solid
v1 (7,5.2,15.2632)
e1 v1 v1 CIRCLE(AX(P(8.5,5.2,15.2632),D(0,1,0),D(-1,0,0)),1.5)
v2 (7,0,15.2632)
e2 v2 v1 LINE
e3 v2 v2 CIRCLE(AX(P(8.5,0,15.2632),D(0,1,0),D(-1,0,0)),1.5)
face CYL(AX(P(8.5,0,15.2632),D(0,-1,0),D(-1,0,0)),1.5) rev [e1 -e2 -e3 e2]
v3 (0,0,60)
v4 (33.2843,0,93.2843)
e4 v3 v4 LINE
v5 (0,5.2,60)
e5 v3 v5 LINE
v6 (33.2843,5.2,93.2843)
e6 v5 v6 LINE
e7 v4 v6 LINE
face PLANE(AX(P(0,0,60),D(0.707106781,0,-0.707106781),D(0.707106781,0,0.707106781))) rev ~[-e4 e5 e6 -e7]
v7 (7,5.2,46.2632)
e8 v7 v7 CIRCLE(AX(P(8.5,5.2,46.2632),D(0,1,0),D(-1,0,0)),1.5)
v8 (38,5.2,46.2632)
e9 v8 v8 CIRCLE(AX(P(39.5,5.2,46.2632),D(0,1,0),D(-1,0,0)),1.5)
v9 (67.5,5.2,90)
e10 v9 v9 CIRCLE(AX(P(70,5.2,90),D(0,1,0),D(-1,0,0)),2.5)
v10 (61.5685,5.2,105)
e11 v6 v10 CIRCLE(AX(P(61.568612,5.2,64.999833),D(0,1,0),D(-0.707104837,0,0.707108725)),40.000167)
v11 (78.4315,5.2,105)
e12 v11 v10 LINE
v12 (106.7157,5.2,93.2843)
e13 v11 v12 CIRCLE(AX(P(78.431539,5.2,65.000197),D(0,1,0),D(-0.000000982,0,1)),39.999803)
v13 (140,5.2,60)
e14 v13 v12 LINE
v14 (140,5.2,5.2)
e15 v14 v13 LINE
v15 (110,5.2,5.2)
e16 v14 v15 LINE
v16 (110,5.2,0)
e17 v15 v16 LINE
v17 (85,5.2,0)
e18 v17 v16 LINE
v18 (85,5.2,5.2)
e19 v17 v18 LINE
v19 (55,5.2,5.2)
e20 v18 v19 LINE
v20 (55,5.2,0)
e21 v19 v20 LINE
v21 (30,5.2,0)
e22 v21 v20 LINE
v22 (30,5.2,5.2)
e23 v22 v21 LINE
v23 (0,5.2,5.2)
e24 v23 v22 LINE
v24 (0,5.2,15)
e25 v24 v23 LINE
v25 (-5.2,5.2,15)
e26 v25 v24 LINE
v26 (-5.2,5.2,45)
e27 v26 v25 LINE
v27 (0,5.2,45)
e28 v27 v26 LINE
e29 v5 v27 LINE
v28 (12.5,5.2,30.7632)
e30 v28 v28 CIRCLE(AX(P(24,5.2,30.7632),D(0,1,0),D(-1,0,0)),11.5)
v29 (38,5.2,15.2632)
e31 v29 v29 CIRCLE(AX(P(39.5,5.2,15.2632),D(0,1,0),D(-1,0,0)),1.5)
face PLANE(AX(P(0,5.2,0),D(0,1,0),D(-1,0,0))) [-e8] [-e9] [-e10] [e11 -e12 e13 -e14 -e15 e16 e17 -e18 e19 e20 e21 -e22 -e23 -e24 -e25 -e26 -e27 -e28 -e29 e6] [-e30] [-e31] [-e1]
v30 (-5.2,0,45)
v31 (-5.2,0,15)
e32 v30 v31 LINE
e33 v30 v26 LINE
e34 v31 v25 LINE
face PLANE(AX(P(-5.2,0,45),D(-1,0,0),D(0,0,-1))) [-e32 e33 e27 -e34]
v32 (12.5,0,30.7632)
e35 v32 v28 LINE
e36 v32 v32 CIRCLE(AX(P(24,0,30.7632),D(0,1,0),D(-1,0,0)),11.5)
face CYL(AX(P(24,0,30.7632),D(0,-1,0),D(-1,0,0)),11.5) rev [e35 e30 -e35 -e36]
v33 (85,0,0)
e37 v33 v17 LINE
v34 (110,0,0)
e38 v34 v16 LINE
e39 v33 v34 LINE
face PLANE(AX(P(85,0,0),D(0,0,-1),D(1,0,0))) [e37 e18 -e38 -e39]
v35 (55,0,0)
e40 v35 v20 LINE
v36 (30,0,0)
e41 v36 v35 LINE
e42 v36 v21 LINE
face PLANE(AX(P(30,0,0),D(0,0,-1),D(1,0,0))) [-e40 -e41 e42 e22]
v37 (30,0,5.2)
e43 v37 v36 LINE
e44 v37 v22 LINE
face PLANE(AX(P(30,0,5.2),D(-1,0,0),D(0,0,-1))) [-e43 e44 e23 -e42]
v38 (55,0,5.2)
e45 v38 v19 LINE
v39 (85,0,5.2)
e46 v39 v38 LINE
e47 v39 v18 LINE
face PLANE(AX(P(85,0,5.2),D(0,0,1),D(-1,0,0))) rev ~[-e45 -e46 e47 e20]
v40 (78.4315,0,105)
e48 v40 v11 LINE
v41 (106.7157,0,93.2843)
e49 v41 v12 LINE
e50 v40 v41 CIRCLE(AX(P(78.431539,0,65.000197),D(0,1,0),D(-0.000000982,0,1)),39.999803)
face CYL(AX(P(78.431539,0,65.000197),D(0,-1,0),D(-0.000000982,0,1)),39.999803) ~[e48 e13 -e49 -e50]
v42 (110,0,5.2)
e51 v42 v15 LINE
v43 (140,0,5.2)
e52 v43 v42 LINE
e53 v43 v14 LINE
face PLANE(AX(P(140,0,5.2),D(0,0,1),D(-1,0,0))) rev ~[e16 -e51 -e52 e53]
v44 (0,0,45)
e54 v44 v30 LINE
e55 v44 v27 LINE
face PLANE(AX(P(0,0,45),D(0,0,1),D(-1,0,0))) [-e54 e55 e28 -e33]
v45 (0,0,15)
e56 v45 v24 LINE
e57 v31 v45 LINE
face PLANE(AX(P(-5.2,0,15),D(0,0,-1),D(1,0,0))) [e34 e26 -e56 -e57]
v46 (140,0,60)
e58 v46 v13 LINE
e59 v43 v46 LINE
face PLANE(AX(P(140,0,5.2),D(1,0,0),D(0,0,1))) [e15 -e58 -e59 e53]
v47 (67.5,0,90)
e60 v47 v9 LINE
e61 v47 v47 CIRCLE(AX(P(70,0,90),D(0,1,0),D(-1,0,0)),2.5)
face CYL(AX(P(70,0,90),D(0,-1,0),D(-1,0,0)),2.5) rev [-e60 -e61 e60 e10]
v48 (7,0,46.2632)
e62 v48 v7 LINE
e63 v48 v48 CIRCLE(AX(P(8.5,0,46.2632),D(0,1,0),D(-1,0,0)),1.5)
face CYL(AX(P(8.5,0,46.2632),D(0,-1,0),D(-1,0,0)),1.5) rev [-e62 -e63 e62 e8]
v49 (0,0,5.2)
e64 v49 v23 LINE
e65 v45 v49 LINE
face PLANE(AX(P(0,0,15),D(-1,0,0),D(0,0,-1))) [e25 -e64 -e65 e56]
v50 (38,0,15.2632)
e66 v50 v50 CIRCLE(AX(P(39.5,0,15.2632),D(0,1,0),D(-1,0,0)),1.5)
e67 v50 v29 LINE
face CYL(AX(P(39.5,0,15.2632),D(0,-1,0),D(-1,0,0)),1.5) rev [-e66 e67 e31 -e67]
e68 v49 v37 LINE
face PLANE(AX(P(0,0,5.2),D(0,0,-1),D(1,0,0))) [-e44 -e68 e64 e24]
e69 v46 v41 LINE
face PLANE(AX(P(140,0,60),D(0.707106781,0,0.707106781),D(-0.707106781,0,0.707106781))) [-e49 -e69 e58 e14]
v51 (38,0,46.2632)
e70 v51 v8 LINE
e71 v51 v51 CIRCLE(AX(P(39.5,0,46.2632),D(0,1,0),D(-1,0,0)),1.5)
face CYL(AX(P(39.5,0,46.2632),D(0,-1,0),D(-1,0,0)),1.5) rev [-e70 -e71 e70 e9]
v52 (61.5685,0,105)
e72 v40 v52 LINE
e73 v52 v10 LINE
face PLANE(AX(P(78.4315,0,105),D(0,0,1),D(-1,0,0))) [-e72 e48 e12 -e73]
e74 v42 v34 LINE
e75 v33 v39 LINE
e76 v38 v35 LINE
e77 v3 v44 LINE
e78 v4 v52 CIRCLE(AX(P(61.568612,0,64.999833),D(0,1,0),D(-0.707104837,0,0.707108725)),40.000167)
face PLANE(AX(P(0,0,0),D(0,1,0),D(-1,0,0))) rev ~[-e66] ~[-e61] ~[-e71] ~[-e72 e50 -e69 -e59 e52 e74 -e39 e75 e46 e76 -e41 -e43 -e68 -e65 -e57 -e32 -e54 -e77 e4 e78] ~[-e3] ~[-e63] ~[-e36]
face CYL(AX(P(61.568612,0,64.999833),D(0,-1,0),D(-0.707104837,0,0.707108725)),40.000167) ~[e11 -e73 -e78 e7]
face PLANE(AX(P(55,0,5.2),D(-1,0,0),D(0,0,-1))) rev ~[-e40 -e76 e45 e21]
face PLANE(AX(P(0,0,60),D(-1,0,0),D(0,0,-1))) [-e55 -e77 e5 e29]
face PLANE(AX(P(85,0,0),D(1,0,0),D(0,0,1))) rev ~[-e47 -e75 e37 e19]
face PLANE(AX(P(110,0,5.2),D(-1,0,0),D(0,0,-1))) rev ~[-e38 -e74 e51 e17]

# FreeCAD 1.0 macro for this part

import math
import FreeCAD as App
import Part
import Sketcher
Q = App.Units.Quantity

doc = App.newDocument("Part")
body = doc.addObject("PartDesign::Body", "Body")

# Sketch on XZ plane
sketch1 = body.newObject("Sketcher::SketchObject", "Sketch")
sketch1.AttachmentSupport = (doc.getObject("XZ_Plane"), [""])
sketch1.MapMode = "FlatFace"
sketch1.addGeometry(Part.LineSegment(App.Vector(55, 0, 0), App.Vector(30, 0, 0)), False)
sketch1.addGeometry(Part.LineSegment(App.Vector(30, 0, 0), App.Vector(30, 5.2, 0)), False)
sketch1.addGeometry(Part.LineSegment(App.Vector(30, 5.2, 0), App.Vector(0, 5.2, 0)), False)
sketch1.addGeometry(Part.LineSegment(App.Vector(0, 5.2, 0), App.Vector(0, 15, 0)), False)
sketch1.addGeometry(Part.LineSegment(App.Vector(0, 15, 0), App.Vector(-5.2, 15, 0)), False)
sketch1.addGeometry(Part.LineSegment(App.Vector(-5.2, 15, 0), App.Vector(-5.2, 45, 0)), False)
sketch1.addGeometry(Part.LineSegment(App.Vector(-5.2, 45, 0), App.Vector(0, 45, 0)), False)
sketch1.addGeometry(Part.LineSegment(App.Vector(0, 45, 0), App.Vector(0, 60, 0)), False)
sketch1.addGeometry(Part.LineSegment(App.Vector(0, 60, 0), App.Vector(33.3, 93.3, 0)), False)
sketch1.addGeometry(Part.ArcOfCircle(Part.Circle(App.Vector(61.6, 65, 0), App.Vector(0, 0, 1), 40), math.radians(90), math.radians(135)), False)
sketch1.addGeometry(Part.LineSegment(App.Vector(61.6, 105, 0), App.Vector(78.4, 105, 0)), False)
sketch1.addGeometry(Part.ArcOfCircle(Part.Circle(App.Vector(78.4, 65, 0), App.Vector(0, 0, 1), 40), math.radians(45), math.radians(90)), False)
sketch1.addGeometry(Part.LineSegment(App.Vector(106.7, 93.3, 0), App.Vector(140, 60, 0)), False)
sketch1.addGeometry(Part.LineSegment(App.Vector(140, 60, 0), App.Vector(140, 5.2, 0)), False)
sketch1.addGeometry(Part.LineSegment(App.Vector(140, 5.2, 0), App.Vector(110, 5.2, 0)), False)
sketch1.addGeometry(Part.LineSegment(App.Vector(110, 5.2, 0), App.Vector(110, 0, 0)), False)
sketch1.addGeometry(Part.LineSegment(App.Vector(110, 0, 0), App.Vector(85, 0, 0)), False)
sketch1.addGeometry(Part.LineSegment(App.Vector(85, 0, 0), App.Vector(85, 5.2, 0)), False)
sketch1.addGeometry(Part.LineSegment(App.Vector(85, 5.2, 0), App.Vector(55, 5.2, 0)), False)
sketch1.addGeometry(Part.LineSegment(App.Vector(55, 5.2, 0), App.Vector(55, 0, 0)), False)
sketch1.addGeometry(Part.Circle(App.Vector(39.5, 15.3, 0), App.Vector(0, 0, 1), 1.5), False)
sketch1.addGeometry(Part.Circle(App.Vector(8.5, 15.3, 0), App.Vector(0, 0, 1), 1.5), False)
sketch1.addGeometry(Part.Circle(App.Vector(39.5, 46.3, 0), App.Vector(0, 0, 1), 1.5), False)
sketch1.addGeometry(Part.Circle(App.Vector(24, 30.8, 0), App.Vector(0, 0, 1), 11.5), False)
sketch1.addGeometry(Part.Circle(App.Vector(8.5, 46.3, 0), App.Vector(0, 0, 1), 1.5), False)
sketch1.addGeometry(Part.Circle(App.Vector(70, 90, 0), App.Vector(0, 0, 1), 2.5), False)
sketch1.addConstraint(Sketcher.Constraint("Coincident", 0, 2, 1, 1))
sketch1.addConstraint(Sketcher.Constraint("Coincident", 1, 2, 2, 1))
sketch1.addConstraint(Sketcher.Constraint("Coincident", 2, 2, 3, 1))
sketch1.addConstraint(Sketcher.Constraint("Coincident", 3, 2, 4, 1))
sketch1.addConstraint(Sketcher.Constraint("Coincident", 4, 2, 5, 1))
sketch1.addConstraint(Sketcher.Constraint("Coincident", 5, 2, 6, 1))
sketch1.addConstraint(Sketcher.Constraint("Coincident", 6, 2, 7, 1))
sketch1.addConstraint(Sketcher.Constraint("Coincident", 7, 2, 8, 1))
sketch1.addConstraint(Sketcher.Constraint("Tangent", 8, 2, 9, 2))
sketch1.addConstraint(Sketcher.Constraint("Tangent", 9, 1, 10, 1))
sketch1.addConstraint(Sketcher.Constraint("Tangent", 10, 2, 11, 2))
sketch1.addConstraint(Sketcher.Constraint("Tangent", 11, 1, 12, 1))
sketch1.addConstraint(Sketcher.Constraint("Coincident", 12, 2, 13, 1))
sketch1.addConstraint(Sketcher.Constraint("Coincident", 13, 2, 14, 1))
sketch1.addConstraint(Sketcher.Constraint("Coincident", 14, 2, 15, 1))
sketch1.addConstraint(Sketcher.Constraint("Coincident", 15, 2, 16, 1))
sketch1.addConstraint(Sketcher.Constraint("Coincident", 16, 2, 17, 1))
sketch1.addConstraint(Sketcher.Constraint("Coincident", 17, 2, 18, 1))
sketch1.addConstraint(Sketcher.Constraint("Coincident", 18, 2, 19, 1))
sketch1.addConstraint(Sketcher.Constraint("Coincident", 19, 2, 0, 1))
sketch1.addConstraint(Sketcher.Constraint("Horizontal", 0))
sketch1.addConstraint(Sketcher.Constraint("Vertical", 1))
sketch1.addConstraint(Sketcher.Constraint("Horizontal", 2))
sketch1.addConstraint(Sketcher.Constraint("Vertical", 3))
sketch1.addConstraint(Sketcher.Constraint("Horizontal", 4))
sketch1.addConstraint(Sketcher.Constraint("Vertical", 5))
sketch1.addConstraint(Sketcher.Constraint("Horizontal", 6))
sketch1.addConstraint(Sketcher.Constraint("Vertical", 7))
sketch1.addConstraint(Sketcher.Constraint("Horizontal", 10))
sketch1.addConstraint(Sketcher.Constraint("Vertical", 13))
sketch1.addConstraint(Sketcher.Constraint("Horizontal", 14))
sketch1.addConstraint(Sketcher.Constraint("Vertical", 15))
sketch1.addConstraint(Sketcher.Constraint("Horizontal", 16))
sketch1.addConstraint(Sketcher.Constraint("Vertical", 17))
sketch1.addConstraint(Sketcher.Constraint("Horizontal", 18))
sketch1.addConstraint(Sketcher.Constraint("Vertical", 19))
sketch1.addConstraint(Sketcher.Constraint("Equal", 9, 11))
sketch1.addConstraint(Sketcher.Constraint("Equal", 20, 21))
sketch1.addConstraint(Sketcher.Constraint("Equal", 21, 22))
sketch1.addConstraint(Sketcher.Constraint("Equal", 22, 24))
sketch1.addConstraint(Sketcher.Constraint("PointOnObject", 0, 2, -1))
sketch1.addConstraint(Sketcher.Constraint("PointOnObject", 2, 2, -2))
sketch1.addConstraint(Sketcher.Constraint("PointOnObject", 6, 2, -2))
sketch1.addConstraint(Sketcher.Constraint("PointOnObject", 15, 2, -1))
sketch1.addConstraint(Sketcher.Constraint("Perpendicular", 8, 12))
sketch1.addConstraint(Sketcher.Constraint("Horizontal", 20, 3, 21, 3))
sketch1.addConstraint(Sketcher.Constraint("Horizontal", 22, 3, 24, 3))
sketch1.addConstraint(Sketcher.Constraint("Horizontal", 8, 2, 11, 1))
sketch1.addConstraint(Sketcher.Constraint("Horizontal", 7, 2, 12, 2))
sketch1.addConstraint(Sketcher.Constraint("Horizontal", 2, 2, 13, 2))
sketch1.addConstraint(Sketcher.Constraint("Horizontal", 14, 2, 17, 2))
sketch1.addConstraint(Sketcher.Constraint("Vertical", 20, 3, 22, 3))
sketch1.addConstraint(Sketcher.Constraint("Vertical", 21, 3, 24, 3))
sketch1.addConstraint(Sketcher.Constraint("Equal", 2, 14))
sketch1.addConstraint(Sketcher.Constraint("Equal", 0, 16))
sketch1.addConstraint(Sketcher.Constraint("Equal", 14, 18))
sketch1.addConstraint(Sketcher.Constraint("Equal", 6, 1))
sketch1.addConstraint(Sketcher.Constraint("Equal", 18, 5))
sketch1.addConstraint(Sketcher.Constraint("Diameter", 20, Q("3 mm")))
sketch1.addConstraint(Sketcher.Constraint("Diameter", 23, Q("23 mm")))
sketch1.addConstraint(Sketcher.Constraint("Diameter", 25, Q("5 mm")))
sketch1.addConstraint(Sketcher.Constraint("Radius", 9, Q("40 mm")))
sketch1.addConstraint(Sketcher.Constraint("DistanceX", 2, 2, 2, 1, Q("30 mm")))
sketch1.addConstraint(Sketcher.Constraint("DistanceY", 7, 1, 7, 2, Q("15 mm")))
sketch1.addConstraint(Sketcher.Constraint("DistanceX", 4, 2, 4, 1, Q("5.2 mm")))
sketch1.addConstraint(Sketcher.Constraint("DistanceX", -1, 1, 23, 3, Q("24 mm")))
sketch1.addConstraint(Sketcher.Constraint("DistanceX", -1, 1, 25, 3, Q("70 mm")))
sketch1.addConstraint(Sketcher.Constraint("DistanceY", -1, 1, 25, 3, Q("90 mm")))
sketch1.addConstraint(Sketcher.Constraint("DistanceY", -1, 1, 3, 2, Q("15 mm")))
sketch1.addConstraint(Sketcher.Constraint("DistanceX", -1, 1, 12, 2, Q("140 mm")))
sketch1.addConstraint(Sketcher.Constraint("DistanceY", 25, 3, 9, 1, Q("15 mm")))
sketch1.addConstraint(Sketcher.Constraint("DistanceX", 23, 3, 22, 3, Q("15.5 mm")))
sketch1.addConstraint(Sketcher.Constraint("DistanceY", 23, 3, 22, 3, Q("15.5 mm")))
sketch1.addConstraint(Sketcher.Constraint("DistanceY", 20, 3, 23, 3, Q("15.5 mm")))
sketch1.addConstraint(Sketcher.Constraint("DistanceX", 21, 3, 23, 3, Q("15.5 mm")))
sketch1.addConstraint(Sketcher.Constraint("DistanceY", 22, 3, 8, 2, Q("47.021 mm")))
pad1 = body.newObject("PartDesign::Pad", "Pad")
pad1.Profile = sketch1
pad1.Length = 5.2
pad1.Reversed = True

doc.recompute()
